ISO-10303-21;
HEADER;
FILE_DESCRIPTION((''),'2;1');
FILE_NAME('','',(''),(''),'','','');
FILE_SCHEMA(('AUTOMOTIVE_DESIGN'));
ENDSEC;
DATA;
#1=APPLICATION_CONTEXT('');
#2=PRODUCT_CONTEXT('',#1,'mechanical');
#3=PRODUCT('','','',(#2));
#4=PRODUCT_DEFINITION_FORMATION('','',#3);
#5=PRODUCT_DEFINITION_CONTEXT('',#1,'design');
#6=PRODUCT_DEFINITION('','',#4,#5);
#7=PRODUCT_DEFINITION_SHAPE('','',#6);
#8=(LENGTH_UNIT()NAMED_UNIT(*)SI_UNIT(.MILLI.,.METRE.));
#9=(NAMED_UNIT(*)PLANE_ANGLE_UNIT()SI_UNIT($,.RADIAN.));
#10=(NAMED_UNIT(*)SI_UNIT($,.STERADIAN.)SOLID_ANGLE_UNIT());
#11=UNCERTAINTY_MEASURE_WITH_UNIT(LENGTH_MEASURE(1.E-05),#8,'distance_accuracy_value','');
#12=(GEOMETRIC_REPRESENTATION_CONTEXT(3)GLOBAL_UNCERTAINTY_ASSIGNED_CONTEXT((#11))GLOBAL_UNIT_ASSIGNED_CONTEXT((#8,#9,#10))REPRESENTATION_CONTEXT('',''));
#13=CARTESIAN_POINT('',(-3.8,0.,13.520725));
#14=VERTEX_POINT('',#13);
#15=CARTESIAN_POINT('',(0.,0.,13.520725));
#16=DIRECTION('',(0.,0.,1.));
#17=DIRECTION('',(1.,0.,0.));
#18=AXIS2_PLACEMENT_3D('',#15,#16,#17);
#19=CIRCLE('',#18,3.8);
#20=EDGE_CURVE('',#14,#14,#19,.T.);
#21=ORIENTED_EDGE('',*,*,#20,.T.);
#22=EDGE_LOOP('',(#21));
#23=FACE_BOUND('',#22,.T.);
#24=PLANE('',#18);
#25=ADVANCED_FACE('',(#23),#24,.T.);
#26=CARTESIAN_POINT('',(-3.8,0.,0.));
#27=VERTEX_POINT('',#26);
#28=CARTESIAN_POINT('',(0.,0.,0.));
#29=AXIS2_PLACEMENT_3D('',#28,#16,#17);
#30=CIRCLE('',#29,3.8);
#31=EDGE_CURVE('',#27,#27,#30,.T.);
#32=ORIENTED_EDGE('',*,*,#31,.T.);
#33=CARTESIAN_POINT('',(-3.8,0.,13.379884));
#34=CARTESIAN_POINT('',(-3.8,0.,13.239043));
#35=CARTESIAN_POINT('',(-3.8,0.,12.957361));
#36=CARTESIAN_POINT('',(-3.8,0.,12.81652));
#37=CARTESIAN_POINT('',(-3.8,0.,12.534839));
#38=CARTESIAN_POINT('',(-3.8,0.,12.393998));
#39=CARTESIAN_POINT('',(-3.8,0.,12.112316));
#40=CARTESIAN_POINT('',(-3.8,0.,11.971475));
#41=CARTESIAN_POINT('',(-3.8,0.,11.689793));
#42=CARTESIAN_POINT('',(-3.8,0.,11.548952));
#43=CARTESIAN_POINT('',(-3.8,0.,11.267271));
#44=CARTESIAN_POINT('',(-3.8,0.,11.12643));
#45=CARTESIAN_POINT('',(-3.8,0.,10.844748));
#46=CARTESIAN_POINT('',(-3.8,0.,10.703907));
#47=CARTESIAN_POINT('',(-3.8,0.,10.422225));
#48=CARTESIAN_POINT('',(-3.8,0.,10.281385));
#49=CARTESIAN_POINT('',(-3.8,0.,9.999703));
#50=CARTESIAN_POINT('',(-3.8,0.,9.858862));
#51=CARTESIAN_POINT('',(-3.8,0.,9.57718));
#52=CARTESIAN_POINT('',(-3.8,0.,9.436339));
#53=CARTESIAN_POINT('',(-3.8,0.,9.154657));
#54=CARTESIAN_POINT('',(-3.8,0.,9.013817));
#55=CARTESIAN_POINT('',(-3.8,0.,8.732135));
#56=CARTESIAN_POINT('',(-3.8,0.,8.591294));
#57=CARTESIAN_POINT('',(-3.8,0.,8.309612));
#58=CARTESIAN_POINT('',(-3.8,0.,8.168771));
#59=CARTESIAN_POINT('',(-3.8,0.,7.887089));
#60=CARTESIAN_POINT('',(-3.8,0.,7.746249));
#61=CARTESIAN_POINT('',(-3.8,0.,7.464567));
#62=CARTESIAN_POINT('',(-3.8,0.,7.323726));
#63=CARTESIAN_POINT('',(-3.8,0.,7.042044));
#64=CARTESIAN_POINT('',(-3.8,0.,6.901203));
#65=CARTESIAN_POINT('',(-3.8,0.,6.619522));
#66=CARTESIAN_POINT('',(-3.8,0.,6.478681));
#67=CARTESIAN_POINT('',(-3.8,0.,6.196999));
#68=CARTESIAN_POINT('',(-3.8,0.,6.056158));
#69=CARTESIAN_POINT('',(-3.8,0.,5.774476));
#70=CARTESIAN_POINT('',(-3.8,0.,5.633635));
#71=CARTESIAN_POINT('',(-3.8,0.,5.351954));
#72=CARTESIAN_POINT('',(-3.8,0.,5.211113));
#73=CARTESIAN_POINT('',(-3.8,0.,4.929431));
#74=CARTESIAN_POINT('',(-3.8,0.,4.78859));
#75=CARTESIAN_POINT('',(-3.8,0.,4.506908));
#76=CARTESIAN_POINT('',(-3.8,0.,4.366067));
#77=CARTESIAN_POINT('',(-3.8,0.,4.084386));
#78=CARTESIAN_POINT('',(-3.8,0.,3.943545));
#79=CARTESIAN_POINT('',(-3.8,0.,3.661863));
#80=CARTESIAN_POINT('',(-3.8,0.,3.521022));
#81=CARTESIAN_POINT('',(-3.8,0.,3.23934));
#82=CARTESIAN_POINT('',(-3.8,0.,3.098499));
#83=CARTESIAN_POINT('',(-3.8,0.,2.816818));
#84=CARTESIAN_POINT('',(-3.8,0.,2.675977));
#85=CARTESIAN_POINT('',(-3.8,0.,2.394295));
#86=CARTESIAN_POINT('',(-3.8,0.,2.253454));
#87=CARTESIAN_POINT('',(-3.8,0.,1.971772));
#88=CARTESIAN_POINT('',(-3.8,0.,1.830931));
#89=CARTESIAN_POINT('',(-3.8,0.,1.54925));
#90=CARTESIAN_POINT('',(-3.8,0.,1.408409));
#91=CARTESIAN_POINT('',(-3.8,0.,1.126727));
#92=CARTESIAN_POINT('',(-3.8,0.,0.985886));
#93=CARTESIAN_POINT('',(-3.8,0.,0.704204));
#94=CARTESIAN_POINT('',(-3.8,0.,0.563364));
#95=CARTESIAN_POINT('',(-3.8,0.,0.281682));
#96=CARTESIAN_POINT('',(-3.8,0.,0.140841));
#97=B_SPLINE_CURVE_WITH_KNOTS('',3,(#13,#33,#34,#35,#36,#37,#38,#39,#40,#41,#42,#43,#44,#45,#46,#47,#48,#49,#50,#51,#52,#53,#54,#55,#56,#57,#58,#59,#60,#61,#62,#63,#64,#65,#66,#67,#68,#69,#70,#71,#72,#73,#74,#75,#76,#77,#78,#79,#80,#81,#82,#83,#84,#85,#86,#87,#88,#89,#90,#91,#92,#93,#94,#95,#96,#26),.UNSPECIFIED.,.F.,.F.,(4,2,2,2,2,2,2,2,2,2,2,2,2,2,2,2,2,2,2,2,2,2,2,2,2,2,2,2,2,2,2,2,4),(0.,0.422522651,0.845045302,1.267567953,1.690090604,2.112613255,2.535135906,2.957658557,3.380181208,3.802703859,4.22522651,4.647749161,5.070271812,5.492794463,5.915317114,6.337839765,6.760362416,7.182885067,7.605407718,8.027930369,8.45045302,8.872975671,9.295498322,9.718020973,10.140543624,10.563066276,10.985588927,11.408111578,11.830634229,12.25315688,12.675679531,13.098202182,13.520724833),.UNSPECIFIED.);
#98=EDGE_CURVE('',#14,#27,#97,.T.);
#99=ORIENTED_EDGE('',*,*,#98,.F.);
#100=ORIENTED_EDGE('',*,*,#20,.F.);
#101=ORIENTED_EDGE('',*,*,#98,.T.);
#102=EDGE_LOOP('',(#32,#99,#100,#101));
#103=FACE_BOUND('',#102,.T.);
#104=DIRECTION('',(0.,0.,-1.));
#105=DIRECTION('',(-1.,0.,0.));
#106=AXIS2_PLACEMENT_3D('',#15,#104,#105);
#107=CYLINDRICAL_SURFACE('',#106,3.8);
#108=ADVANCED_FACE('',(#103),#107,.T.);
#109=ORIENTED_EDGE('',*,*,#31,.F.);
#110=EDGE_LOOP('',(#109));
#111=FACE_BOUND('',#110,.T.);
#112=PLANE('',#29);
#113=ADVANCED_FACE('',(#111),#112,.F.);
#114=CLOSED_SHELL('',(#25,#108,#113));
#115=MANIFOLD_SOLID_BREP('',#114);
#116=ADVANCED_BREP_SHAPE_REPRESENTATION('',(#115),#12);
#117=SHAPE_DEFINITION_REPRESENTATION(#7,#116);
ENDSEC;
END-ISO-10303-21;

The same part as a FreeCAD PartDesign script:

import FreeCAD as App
import Part
import Sketcher

V = App.Vector
Q = App.Units.Quantity

doc = App.newDocument("Part")
body = doc.addObject("PartDesign::Body", "Body")

# Sketch on XY plane
sketch1 = body.newObject("Sketcher::SketchObject", "Sketch")
sketch1.AttachmentSupport = (doc.getObject("XY_Plane"), [""])
sketch1.MapMode = "FlatFace"
sketch1.addGeometry(Part.Circle(V(0, 0, 0), V(0, 0, 1), 3.8), False)
sketch1.addConstraint([
    Sketcher.Constraint("Coincident", 0, 3, -1, 1),
    Sketcher.Constraint("Diameter", 0, Q("7.6 mm")),
])
pad1 = body.newObject("PartDesign::Pad", "Pad")
pad1.Profile = sketch1
pad1.Length = 13.520725

doc.recompute()
